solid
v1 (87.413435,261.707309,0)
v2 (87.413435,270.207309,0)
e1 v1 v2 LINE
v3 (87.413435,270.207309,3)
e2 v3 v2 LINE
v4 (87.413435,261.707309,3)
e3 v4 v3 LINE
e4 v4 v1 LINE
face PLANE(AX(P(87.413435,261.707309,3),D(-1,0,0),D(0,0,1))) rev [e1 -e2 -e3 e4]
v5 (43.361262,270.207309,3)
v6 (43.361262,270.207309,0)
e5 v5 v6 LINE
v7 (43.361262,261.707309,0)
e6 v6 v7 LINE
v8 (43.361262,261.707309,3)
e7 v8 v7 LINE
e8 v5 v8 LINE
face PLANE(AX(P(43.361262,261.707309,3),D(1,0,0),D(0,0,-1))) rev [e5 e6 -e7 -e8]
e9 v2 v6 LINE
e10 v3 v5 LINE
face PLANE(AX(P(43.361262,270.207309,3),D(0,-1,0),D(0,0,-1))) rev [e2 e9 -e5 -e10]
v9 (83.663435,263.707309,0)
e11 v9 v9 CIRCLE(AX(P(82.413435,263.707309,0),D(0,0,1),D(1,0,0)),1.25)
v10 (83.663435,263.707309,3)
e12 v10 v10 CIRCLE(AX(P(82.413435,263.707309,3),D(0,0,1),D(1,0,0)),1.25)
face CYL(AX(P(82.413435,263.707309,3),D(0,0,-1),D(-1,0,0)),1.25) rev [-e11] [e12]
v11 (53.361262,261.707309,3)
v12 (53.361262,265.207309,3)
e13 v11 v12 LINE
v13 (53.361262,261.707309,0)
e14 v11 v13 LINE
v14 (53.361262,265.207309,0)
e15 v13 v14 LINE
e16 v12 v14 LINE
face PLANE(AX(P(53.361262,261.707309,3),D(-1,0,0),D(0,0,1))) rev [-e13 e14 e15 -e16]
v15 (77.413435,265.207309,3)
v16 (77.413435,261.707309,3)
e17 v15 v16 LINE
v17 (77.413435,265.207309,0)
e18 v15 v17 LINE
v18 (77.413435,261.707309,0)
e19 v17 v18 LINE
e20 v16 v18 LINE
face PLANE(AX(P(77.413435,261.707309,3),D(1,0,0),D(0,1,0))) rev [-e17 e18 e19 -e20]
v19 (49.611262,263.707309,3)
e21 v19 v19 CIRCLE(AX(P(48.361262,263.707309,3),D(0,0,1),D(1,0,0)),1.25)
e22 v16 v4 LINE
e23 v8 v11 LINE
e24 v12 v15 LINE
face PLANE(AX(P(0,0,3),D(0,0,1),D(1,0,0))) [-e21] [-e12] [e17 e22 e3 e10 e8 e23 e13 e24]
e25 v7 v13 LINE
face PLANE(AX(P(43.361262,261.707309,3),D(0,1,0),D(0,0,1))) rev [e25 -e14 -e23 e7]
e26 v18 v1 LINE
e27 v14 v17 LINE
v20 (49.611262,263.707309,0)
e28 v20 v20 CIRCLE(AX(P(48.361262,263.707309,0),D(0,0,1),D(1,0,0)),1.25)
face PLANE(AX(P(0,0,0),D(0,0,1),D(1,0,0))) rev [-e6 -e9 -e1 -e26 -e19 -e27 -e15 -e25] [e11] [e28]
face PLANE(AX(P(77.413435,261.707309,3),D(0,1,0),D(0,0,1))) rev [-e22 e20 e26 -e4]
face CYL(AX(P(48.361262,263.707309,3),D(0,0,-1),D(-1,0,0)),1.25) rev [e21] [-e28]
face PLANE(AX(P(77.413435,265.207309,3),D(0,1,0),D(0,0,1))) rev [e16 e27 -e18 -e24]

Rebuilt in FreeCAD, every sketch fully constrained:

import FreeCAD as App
import Part
import Sketcher
Q = App.Units.Quantity


def add_polygon(sketch, points):
    """Adds a closed chain of lines whose ends are joined by coincident constraints."""
    first, n = sketch.GeometryCount, len(points)
    for a, b in zip(points, points[1:] + points[:1]):
        sketch.addGeometry(Part.LineSegment(App.Vector(*a, 0), App.Vector(*b, 0)), False)
    for i in range(n):
        sketch.addConstraint(Sketcher.Constraint("Coincident", first + i, 2, first + (i + 1) % n, 1))

doc = App.newDocument("Part")
body = doc.addObject("PartDesign::Body", "Body")

# Sketch on XY plane
sketch1 = body.newObject("Sketcher::SketchObject", "Sketch")
sketch1.AttachmentSupport = (doc.getObject("XY_Plane"), [""])
sketch1.MapMode = "FlatFace"
add_polygon(sketch1, [(87.4, 261.7), (87.4, 270.2), (43.4, 270.2), (43.4, 261.7), (53.4, 261.7), (53.4, 265.2), (77.4, 265.2), (77.4, 261.7)])  # lines 0-7
sketch1.addGeometry(Part.Circle(App.Vector(48.4, 263.7, 0), App.Vector(0, 0, 1), 1.2), False)  # 8
sketch1.addGeometry(Part.Circle(App.Vector(82.4, 263.7, 0), App.Vector(0, 0, 1), 1.2), False)  # 9
sketch1.addConstraint([
    Sketcher.Constraint("Vertical", 0),
    Sketcher.Constraint("Horizontal", 1),
    Sketcher.Constraint("Vertical", 2),
    Sketcher.Constraint("Horizontal", 3),
    Sketcher.Constraint("Vertical", 4),
    Sketcher.Constraint("Horizontal", 5),
    Sketcher.Constraint("Vertical", 6),
    Sketcher.Constraint("Horizontal", 7),
    Sketcher.Constraint("Equal", 8, 9),
    Sketcher.Constraint("Horizontal", 8, 3, 9, 3),
    Sketcher.Constraint("Horizontal", 3, 2, 6, 2),
    Sketcher.Constraint("Equal", 3, 7),
    Sketcher.Constraint("Diameter", 8, Q("2.5 mm")),
    Sketcher.Constraint("DistanceX", 3, 1, 3, 2, Q("10 mm")),
    Sketcher.Constraint("DistanceY", 0, 1, 0, 2, Q("8.5 mm")),
    Sketcher.Constraint("DistanceY", 4, 1, 4, 2, Q("3.5 mm")),
    Sketcher.Constraint("DistanceX", 9, 3, 0, 2, Q("5 mm")),
    Sketcher.Constraint("DistanceX", 1, 2, 8, 3, Q("5 mm")),
    Sketcher.Constraint("DistanceY", 2, 2, 8, 3, Q("2 mm")),
    Sketcher.Constraint("DistanceX", 1, 2, 1, 1, Q("44.052173 mm")),
    Sketcher.Constraint("DistanceY", -1, 1, 8, 3, Q("263.707309 mm")),
    Sketcher.Constraint("DistanceX", -1, 1, 8, 3, Q("48.361262 mm")),
])
pad1 = body.newObject("PartDesign::Pad", "Pad")
pad1.Profile = sketch1
pad1.Length = 3

doc.recompute()
